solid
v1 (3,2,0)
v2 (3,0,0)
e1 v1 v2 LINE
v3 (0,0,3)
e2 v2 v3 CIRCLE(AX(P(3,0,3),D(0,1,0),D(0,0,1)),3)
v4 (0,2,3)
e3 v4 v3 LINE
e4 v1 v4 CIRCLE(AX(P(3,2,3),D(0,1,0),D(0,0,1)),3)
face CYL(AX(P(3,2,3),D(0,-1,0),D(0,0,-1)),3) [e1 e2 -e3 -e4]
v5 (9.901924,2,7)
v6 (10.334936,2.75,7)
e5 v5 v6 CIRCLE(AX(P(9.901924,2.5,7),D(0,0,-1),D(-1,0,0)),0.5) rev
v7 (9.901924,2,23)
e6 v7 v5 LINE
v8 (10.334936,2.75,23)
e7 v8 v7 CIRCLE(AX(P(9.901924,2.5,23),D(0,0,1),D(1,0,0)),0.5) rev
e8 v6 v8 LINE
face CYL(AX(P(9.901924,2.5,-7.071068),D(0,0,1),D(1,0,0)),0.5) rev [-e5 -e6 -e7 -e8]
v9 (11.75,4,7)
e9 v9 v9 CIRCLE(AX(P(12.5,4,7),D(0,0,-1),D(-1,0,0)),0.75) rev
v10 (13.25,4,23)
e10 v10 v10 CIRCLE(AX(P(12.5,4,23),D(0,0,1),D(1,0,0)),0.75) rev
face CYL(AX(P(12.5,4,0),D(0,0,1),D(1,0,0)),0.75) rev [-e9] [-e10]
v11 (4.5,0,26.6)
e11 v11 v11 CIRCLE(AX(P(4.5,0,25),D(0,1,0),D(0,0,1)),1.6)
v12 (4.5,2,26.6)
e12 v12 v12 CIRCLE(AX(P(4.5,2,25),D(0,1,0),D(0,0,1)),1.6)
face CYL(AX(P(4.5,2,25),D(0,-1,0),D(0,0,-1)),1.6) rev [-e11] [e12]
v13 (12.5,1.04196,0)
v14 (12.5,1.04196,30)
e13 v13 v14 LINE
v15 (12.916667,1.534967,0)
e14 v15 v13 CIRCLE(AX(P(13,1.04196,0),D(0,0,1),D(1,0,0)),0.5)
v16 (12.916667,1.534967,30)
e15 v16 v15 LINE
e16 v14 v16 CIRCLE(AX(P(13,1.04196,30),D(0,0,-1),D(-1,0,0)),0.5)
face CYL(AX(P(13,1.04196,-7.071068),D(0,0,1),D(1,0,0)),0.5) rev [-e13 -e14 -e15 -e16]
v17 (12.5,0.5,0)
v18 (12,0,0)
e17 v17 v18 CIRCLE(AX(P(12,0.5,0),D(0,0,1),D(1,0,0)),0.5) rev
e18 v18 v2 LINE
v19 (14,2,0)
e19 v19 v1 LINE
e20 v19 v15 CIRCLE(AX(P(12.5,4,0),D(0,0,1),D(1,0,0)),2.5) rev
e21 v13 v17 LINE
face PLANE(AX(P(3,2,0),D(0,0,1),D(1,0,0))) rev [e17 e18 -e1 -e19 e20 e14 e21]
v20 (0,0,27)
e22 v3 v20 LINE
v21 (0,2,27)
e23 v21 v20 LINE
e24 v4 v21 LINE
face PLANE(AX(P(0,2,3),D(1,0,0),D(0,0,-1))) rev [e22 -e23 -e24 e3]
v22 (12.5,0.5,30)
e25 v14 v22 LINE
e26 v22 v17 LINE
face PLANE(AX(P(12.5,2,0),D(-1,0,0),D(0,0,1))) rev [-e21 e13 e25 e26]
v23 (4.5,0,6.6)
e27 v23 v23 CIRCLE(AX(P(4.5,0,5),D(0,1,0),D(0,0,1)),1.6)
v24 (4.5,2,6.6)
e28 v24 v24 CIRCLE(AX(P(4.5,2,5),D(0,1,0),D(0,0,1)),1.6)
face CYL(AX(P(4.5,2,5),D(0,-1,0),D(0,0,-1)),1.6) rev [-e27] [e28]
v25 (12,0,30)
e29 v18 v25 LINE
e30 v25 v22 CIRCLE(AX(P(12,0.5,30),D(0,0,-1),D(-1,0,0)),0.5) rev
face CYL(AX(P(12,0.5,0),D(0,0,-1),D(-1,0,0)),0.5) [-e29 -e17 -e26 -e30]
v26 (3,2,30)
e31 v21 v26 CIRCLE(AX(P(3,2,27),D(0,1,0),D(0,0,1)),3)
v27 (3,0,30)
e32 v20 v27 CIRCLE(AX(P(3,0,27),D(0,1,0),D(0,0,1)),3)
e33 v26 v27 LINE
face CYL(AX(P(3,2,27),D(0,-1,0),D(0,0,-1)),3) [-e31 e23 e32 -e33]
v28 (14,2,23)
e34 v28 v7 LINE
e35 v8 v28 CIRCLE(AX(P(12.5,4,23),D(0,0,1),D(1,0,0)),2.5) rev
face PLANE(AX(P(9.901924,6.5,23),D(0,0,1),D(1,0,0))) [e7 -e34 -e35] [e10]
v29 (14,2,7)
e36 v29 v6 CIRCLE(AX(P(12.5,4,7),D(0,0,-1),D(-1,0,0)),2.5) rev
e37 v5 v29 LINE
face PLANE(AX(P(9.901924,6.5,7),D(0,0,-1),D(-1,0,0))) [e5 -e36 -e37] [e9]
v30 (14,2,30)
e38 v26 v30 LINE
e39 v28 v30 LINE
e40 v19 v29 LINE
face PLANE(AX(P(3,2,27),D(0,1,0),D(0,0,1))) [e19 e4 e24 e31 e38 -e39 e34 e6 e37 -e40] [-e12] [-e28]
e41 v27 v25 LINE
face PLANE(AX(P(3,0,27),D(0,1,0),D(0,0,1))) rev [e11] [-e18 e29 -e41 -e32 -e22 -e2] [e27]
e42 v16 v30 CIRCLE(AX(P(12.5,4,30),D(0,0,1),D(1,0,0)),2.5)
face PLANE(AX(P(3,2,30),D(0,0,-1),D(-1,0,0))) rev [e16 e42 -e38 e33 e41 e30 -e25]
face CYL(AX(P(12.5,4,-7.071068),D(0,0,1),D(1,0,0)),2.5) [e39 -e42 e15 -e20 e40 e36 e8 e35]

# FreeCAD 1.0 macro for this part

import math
import FreeCAD as App
import Part
import Sketcher
from FreeCAD import Vector


def edges_at(feature, points):
    """Names of the edges that pass closest to the given points."""
    edges = feature.Shape.Edges
    near = lambda p: min(range(len(edges)), key=lambda i: edges[i].distToShape(Part.Vertex(*p))[0])
    return sorted({f"Edge{near(p) + 1}" for p in points})

doc = App.newDocument("Part")
params = doc.addObject("Spreadsheet::Sheet", "Params")
for row, (alias, value) in enumerate([
    ("sketch1_radius", "3 mm"),
    ("sketch1_diameter", "3.2 mm"),
    ("sketch1_height", "24 mm"),
    ("sketch1_width", "9.5 mm"),
    ("pad1_length", "2 mm"),
    ("sketch2_diameter", "5 mm"),
    ("pad2_length", "30 mm"),
    ("fillet_radius", "0.5 mm"),
    ("sketch3_diameter", "1.5 mm"),
    ("sketch4_height", "7 mm"),
], start=1):
    params.set(f"A{row}", alias)
    params.set(f"B{row}", "=" + value)
    params.setAlias(f"B{row}", alias)

body = doc.addObject("PartDesign::Body", "Body")

sketch1 = body.newObject("Sketcher::SketchObject", "Sketch")
sketch1.AttachmentSupport = (doc.getObject("XZ_Plane"), [""])
sketch1.MapMode = "FlatFace"
sketch1.addGeometry(Part.LineSegment(Vector(12.5, 0, 0), Vector(3, 0, 0)), False)
sketch1.addGeometry(Part.ArcOfCircle(Part.Circle(Vector(3, 3, 0), Vector(0, 0, 1), 3), math.radians(180), math.radians(270)), False)
sketch1.addGeometry(Part.LineSegment(Vector(0, 3, 0), Vector(0, 27, 0)), False)
sketch1.addGeometry(Part.ArcOfCircle(Part.Circle(Vector(3, 27, 0), Vector(0, 0, 1), 3), math.radians(90), math.radians(180)), False)
sketch1.addGeometry(Part.LineSegment(Vector(3, 30, 0), Vector(12.5, 30, 0)), False)
sketch1.addGeometry(Part.LineSegment(Vector(12.5, 30, 0), Vector(12.5, 0, 0)), False)
sketch1.addGeometry(Part.Circle(Vector(4.5, 25, 0), Vector(0, 0, 1), 1.6), False)
sketch1.addGeometry(Part.Circle(Vector(4.5, 5, 0), Vector(0, 0, 1), 1.6), False)
sketch1.addConstraint(Sketcher.Constraint("Tangent", 0, 2, 1, 2))
sketch1.addConstraint(Sketcher.Constraint("Tangent", 1, 1, 2, 1))
sketch1.addConstraint(Sketcher.Constraint("Tangent", 2, 2, 3, 2))
sketch1.addConstraint(Sketcher.Constraint("Tangent", 3, 1, 4, 1))
sketch1.addConstraint(Sketcher.Constraint("Coincident", 4, 2, 5, 1))
sketch1.addConstraint(Sketcher.Constraint("Coincident", 5, 2, 0, 1))
sketch1.addConstraint(Sketcher.Constraint("Horizontal", 0))
sketch1.addConstraint(Sketcher.Constraint("Vertical", 2))
sketch1.addConstraint(Sketcher.Constraint("Horizontal", 4))
sketch1.addConstraint(Sketcher.Constraint("Vertical", 5))
sketch1.addConstraint(Sketcher.Constraint("Equal", 1, 3))
sketch1.addConstraint(Sketcher.Constraint("Equal", 6, 7))
sketch1.addConstraint(Sketcher.Constraint("PointOnObject", 0, 2, -1))
sketch1.addConstraint(Sketcher.Constraint("PointOnObject", 1, 1, -2))
sketch1.addConstraint(Sketcher.Constraint("Vertical", 6, 3, 7, 3))
sketch1.addConstraint(Sketcher.Constraint("Radius", 1, 3.0))
sketch1.addConstraint(Sketcher.Constraint("Diameter", 6, 3.2))
sketch1.addConstraint(Sketcher.Constraint("DistanceY", 2, 1, 2, 2, 24.0))
sketch1.addConstraint(Sketcher.Constraint("DistanceX", 0, 2, 0, 1, 9.5))
sketch1.addConstraint(Sketcher.Constraint("DistanceY", -1, 1, 6, 3, 25.0))
sketch1.addConstraint(Sketcher.Constraint("DistanceY", -1, 1, 7, 3, 5.0))
sketch1.addConstraint(Sketcher.Constraint("DistanceX", 6, 3, 4, 2, 8.0))
sketch1.setExpression("Constraints[15]", "Params.sketch1_radius")
sketch1.setExpression("Constraints[16]", "Params.sketch1_diameter")
sketch1.setExpression("Constraints[17]", "Params.sketch1_height")
sketch1.setExpression("Constraints[18]", "Params.sketch1_width")
pad1 = body.newObject("PartDesign::Pad", "Pad")
pad1.Profile = sketch1
pad1.setExpression("Length", "Params.pad1_length")
pad1.Reversed = True

sketch2 = body.newObject("Sketcher::SketchObject", "Sketch001")
sketch2.AttachmentSupport = (doc.getObject("XY_Plane"), [""])
sketch2.MapMode = "FlatFace"
sketch2.AttachmentOffset = App.Placement(Vector(0, 0, 30), App.Rotation())
sketch2.addGeometry(Part.Circle(Vector(12.5, 4, 0), Vector(0, 0, 1), 2.5), False)
sketch2.addConstraint(Sketcher.Constraint("Diameter", 0, 5.0))
sketch2.addConstraint(Sketcher.Constraint("DistanceY", -1, 1, 0, 3, 4.0))
sketch2.addConstraint(Sketcher.Constraint("DistanceX", -1, 1, 0, 3, 12.5))
sketch2.setExpression("Constraints[0]", "Params.sketch2_diameter")
pad2 = body.newObject("PartDesign::Pad", "Pad001")
pad2.Profile = sketch2
pad2.setExpression("Length", "Params.pad2_length")
pad2.Reversed = True
doc.recompute()

fillet = body.newObject("PartDesign::Fillet", "Fillet")
fillet.Base = (pad2, edges_at(pad2, [(12.5, 1.5, 15), (11, 2, 15), (12.5, 0, 15)]))
fillet.setExpression("Radius", "Params.fillet_radius")

sketch3 = body.newObject("Sketcher::SketchObject", "Sketch002")
sketch3.AttachmentSupport = (doc.getObject("XY_Plane"), [""])
sketch3.MapMode = "FlatFace"
sketch3.AttachmentOffset = App.Placement(Vector(0, 0, 30), App.Rotation())
sketch3.addGeometry(Part.Circle(Vector(12.5, 4, 0), Vector(0, 0, 1), 0.75), False)
sketch3.addConstraint(Sketcher.Constraint("Diameter", 0, 1.5))
sketch3.addConstraint(Sketcher.Constraint("DistanceY", -1, 1, 0, 3, 4.0))
sketch3.addConstraint(Sketcher.Constraint("DistanceX", -1, 1, 0, 3, 12.5))
sketch3.setExpression("Constraints[0]", "Params.sketch3_diameter")
pocket1 = body.newObject("PartDesign::Pocket", "Pocket")
pocket1.Profile = sketch3
pocket1.Type = "ThroughAll"

sketch4 = body.newObject("Sketcher::SketchObject", "Sketch003")
sketch4.AttachmentSupport = (doc.getObject("XZ_Plane"), [""])
sketch4.MapMode = "FlatFace"
sketch4.AttachmentOffset = App.Placement(Vector(0, 0, -2), App.Rotation())
sketch4.addGeometry(Part.LineSegment(Vector(9.901924, 0, 0), Vector(9.901924, 7, 0)), False)
sketch4.addGeometry(Part.LineSegment(Vector(9.901924, 7, 0), Vector(15, 7, 0)), False)
sketch4.addGeometry(Part.LineSegment(Vector(15, 7, 0), Vector(15, 0, 0)), False)
sketch4.addGeometry(Part.LineSegment(Vector(15, 0, 0), Vector(9.901924, 0, 0)), False)
sketch4.addGeometry(Part.LineSegment(Vector(9.901924, 23, 0), Vector(9.901924, 30, 0)), False)
sketch4.addGeometry(Part.LineSegment(Vector(9.901924, 30, 0), Vector(15, 30, 0)), False)
sketch4.addGeometry(Part.LineSegment(Vector(15, 30, 0), Vector(15, 23, 0)), False)
sketch4.addGeometry(Part.LineSegment(Vector(15, 23, 0), Vector(9.901924, 23, 0)), False)
sketch4.addConstraint(Sketcher.Constraint("Coincident", 0, 2, 1, 1))
sketch4.addConstraint(Sketcher.Constraint("Coincident", 1, 2, 2, 1))
sketch4.addConstraint(Sketcher.Constraint("Coincident", 2, 2, 3, 1))
sketch4.addConstraint(Sketcher.Constraint("Coincident", 3, 2, 0, 1))
sketch4.addConstraint(Sketcher.Constraint("Coincident", 4, 2, 5, 1))
sketch4.addConstraint(Sketcher.Constraint("Coincident", 5, 2, 6, 1))
sketch4.addConstraint(Sketcher.Constraint("Coincident", 6, 2, 7, 1))
sketch4.addConstraint(Sketcher.Constraint("Coincident", 7, 2, 4, 1))
sketch4.addConstraint(Sketcher.Constraint("Vertical", 0))
sketch4.addConstraint(Sketcher.Constraint("Horizontal", 1))
sketch4.addConstraint(Sketcher.Constraint("Vertical", 2))
sketch4.addConstraint(Sketcher.Constraint("Horizontal", 3))
sketch4.addConstraint(Sketcher.Constraint("Vertical", 4))
sketch4.addConstraint(Sketcher.Constraint("Horizontal", 5))
sketch4.addConstraint(Sketcher.Constraint("Vertical", 6))
sketch4.addConstraint(Sketcher.Constraint("Horizontal", 7))
sketch4.addConstraint(Sketcher.Constraint("PointOnObject", 2, 2, -1))
sketch4.addConstraint(Sketcher.Constraint("Vertical", 3, 2, 4, 2))
sketch4.addConstraint(Sketcher.Constraint("Vertical", 2, 2, 5, 2))
sketch4.addConstraint(Sketcher.Constraint("Equal", 2, 4))
sketch4.addConstraint(Sketcher.Constraint("DistanceY", 0, 1, 0, 2, 7.0))
sketch4.addConstraint(Sketcher.Constraint("DistanceX", -1, 1, 1, 2, 15.0))
sketch4.addConstraint(Sketcher.Constraint("DistanceY", -1, 1, 4, 2, 30.0))
sketch4.addConstraint(Sketcher.Constraint("DistanceX", 1, 1, 1, 2, 5.098076))
sketch4.setExpression("Constraints[20]", "Params.sketch4_height")
pocket2 = body.newObject("PartDesign::Pocket", "Pocket001")
pocket2.Profile = sketch4
pocket2.Type = "ThroughAll"

doc.recompute()
